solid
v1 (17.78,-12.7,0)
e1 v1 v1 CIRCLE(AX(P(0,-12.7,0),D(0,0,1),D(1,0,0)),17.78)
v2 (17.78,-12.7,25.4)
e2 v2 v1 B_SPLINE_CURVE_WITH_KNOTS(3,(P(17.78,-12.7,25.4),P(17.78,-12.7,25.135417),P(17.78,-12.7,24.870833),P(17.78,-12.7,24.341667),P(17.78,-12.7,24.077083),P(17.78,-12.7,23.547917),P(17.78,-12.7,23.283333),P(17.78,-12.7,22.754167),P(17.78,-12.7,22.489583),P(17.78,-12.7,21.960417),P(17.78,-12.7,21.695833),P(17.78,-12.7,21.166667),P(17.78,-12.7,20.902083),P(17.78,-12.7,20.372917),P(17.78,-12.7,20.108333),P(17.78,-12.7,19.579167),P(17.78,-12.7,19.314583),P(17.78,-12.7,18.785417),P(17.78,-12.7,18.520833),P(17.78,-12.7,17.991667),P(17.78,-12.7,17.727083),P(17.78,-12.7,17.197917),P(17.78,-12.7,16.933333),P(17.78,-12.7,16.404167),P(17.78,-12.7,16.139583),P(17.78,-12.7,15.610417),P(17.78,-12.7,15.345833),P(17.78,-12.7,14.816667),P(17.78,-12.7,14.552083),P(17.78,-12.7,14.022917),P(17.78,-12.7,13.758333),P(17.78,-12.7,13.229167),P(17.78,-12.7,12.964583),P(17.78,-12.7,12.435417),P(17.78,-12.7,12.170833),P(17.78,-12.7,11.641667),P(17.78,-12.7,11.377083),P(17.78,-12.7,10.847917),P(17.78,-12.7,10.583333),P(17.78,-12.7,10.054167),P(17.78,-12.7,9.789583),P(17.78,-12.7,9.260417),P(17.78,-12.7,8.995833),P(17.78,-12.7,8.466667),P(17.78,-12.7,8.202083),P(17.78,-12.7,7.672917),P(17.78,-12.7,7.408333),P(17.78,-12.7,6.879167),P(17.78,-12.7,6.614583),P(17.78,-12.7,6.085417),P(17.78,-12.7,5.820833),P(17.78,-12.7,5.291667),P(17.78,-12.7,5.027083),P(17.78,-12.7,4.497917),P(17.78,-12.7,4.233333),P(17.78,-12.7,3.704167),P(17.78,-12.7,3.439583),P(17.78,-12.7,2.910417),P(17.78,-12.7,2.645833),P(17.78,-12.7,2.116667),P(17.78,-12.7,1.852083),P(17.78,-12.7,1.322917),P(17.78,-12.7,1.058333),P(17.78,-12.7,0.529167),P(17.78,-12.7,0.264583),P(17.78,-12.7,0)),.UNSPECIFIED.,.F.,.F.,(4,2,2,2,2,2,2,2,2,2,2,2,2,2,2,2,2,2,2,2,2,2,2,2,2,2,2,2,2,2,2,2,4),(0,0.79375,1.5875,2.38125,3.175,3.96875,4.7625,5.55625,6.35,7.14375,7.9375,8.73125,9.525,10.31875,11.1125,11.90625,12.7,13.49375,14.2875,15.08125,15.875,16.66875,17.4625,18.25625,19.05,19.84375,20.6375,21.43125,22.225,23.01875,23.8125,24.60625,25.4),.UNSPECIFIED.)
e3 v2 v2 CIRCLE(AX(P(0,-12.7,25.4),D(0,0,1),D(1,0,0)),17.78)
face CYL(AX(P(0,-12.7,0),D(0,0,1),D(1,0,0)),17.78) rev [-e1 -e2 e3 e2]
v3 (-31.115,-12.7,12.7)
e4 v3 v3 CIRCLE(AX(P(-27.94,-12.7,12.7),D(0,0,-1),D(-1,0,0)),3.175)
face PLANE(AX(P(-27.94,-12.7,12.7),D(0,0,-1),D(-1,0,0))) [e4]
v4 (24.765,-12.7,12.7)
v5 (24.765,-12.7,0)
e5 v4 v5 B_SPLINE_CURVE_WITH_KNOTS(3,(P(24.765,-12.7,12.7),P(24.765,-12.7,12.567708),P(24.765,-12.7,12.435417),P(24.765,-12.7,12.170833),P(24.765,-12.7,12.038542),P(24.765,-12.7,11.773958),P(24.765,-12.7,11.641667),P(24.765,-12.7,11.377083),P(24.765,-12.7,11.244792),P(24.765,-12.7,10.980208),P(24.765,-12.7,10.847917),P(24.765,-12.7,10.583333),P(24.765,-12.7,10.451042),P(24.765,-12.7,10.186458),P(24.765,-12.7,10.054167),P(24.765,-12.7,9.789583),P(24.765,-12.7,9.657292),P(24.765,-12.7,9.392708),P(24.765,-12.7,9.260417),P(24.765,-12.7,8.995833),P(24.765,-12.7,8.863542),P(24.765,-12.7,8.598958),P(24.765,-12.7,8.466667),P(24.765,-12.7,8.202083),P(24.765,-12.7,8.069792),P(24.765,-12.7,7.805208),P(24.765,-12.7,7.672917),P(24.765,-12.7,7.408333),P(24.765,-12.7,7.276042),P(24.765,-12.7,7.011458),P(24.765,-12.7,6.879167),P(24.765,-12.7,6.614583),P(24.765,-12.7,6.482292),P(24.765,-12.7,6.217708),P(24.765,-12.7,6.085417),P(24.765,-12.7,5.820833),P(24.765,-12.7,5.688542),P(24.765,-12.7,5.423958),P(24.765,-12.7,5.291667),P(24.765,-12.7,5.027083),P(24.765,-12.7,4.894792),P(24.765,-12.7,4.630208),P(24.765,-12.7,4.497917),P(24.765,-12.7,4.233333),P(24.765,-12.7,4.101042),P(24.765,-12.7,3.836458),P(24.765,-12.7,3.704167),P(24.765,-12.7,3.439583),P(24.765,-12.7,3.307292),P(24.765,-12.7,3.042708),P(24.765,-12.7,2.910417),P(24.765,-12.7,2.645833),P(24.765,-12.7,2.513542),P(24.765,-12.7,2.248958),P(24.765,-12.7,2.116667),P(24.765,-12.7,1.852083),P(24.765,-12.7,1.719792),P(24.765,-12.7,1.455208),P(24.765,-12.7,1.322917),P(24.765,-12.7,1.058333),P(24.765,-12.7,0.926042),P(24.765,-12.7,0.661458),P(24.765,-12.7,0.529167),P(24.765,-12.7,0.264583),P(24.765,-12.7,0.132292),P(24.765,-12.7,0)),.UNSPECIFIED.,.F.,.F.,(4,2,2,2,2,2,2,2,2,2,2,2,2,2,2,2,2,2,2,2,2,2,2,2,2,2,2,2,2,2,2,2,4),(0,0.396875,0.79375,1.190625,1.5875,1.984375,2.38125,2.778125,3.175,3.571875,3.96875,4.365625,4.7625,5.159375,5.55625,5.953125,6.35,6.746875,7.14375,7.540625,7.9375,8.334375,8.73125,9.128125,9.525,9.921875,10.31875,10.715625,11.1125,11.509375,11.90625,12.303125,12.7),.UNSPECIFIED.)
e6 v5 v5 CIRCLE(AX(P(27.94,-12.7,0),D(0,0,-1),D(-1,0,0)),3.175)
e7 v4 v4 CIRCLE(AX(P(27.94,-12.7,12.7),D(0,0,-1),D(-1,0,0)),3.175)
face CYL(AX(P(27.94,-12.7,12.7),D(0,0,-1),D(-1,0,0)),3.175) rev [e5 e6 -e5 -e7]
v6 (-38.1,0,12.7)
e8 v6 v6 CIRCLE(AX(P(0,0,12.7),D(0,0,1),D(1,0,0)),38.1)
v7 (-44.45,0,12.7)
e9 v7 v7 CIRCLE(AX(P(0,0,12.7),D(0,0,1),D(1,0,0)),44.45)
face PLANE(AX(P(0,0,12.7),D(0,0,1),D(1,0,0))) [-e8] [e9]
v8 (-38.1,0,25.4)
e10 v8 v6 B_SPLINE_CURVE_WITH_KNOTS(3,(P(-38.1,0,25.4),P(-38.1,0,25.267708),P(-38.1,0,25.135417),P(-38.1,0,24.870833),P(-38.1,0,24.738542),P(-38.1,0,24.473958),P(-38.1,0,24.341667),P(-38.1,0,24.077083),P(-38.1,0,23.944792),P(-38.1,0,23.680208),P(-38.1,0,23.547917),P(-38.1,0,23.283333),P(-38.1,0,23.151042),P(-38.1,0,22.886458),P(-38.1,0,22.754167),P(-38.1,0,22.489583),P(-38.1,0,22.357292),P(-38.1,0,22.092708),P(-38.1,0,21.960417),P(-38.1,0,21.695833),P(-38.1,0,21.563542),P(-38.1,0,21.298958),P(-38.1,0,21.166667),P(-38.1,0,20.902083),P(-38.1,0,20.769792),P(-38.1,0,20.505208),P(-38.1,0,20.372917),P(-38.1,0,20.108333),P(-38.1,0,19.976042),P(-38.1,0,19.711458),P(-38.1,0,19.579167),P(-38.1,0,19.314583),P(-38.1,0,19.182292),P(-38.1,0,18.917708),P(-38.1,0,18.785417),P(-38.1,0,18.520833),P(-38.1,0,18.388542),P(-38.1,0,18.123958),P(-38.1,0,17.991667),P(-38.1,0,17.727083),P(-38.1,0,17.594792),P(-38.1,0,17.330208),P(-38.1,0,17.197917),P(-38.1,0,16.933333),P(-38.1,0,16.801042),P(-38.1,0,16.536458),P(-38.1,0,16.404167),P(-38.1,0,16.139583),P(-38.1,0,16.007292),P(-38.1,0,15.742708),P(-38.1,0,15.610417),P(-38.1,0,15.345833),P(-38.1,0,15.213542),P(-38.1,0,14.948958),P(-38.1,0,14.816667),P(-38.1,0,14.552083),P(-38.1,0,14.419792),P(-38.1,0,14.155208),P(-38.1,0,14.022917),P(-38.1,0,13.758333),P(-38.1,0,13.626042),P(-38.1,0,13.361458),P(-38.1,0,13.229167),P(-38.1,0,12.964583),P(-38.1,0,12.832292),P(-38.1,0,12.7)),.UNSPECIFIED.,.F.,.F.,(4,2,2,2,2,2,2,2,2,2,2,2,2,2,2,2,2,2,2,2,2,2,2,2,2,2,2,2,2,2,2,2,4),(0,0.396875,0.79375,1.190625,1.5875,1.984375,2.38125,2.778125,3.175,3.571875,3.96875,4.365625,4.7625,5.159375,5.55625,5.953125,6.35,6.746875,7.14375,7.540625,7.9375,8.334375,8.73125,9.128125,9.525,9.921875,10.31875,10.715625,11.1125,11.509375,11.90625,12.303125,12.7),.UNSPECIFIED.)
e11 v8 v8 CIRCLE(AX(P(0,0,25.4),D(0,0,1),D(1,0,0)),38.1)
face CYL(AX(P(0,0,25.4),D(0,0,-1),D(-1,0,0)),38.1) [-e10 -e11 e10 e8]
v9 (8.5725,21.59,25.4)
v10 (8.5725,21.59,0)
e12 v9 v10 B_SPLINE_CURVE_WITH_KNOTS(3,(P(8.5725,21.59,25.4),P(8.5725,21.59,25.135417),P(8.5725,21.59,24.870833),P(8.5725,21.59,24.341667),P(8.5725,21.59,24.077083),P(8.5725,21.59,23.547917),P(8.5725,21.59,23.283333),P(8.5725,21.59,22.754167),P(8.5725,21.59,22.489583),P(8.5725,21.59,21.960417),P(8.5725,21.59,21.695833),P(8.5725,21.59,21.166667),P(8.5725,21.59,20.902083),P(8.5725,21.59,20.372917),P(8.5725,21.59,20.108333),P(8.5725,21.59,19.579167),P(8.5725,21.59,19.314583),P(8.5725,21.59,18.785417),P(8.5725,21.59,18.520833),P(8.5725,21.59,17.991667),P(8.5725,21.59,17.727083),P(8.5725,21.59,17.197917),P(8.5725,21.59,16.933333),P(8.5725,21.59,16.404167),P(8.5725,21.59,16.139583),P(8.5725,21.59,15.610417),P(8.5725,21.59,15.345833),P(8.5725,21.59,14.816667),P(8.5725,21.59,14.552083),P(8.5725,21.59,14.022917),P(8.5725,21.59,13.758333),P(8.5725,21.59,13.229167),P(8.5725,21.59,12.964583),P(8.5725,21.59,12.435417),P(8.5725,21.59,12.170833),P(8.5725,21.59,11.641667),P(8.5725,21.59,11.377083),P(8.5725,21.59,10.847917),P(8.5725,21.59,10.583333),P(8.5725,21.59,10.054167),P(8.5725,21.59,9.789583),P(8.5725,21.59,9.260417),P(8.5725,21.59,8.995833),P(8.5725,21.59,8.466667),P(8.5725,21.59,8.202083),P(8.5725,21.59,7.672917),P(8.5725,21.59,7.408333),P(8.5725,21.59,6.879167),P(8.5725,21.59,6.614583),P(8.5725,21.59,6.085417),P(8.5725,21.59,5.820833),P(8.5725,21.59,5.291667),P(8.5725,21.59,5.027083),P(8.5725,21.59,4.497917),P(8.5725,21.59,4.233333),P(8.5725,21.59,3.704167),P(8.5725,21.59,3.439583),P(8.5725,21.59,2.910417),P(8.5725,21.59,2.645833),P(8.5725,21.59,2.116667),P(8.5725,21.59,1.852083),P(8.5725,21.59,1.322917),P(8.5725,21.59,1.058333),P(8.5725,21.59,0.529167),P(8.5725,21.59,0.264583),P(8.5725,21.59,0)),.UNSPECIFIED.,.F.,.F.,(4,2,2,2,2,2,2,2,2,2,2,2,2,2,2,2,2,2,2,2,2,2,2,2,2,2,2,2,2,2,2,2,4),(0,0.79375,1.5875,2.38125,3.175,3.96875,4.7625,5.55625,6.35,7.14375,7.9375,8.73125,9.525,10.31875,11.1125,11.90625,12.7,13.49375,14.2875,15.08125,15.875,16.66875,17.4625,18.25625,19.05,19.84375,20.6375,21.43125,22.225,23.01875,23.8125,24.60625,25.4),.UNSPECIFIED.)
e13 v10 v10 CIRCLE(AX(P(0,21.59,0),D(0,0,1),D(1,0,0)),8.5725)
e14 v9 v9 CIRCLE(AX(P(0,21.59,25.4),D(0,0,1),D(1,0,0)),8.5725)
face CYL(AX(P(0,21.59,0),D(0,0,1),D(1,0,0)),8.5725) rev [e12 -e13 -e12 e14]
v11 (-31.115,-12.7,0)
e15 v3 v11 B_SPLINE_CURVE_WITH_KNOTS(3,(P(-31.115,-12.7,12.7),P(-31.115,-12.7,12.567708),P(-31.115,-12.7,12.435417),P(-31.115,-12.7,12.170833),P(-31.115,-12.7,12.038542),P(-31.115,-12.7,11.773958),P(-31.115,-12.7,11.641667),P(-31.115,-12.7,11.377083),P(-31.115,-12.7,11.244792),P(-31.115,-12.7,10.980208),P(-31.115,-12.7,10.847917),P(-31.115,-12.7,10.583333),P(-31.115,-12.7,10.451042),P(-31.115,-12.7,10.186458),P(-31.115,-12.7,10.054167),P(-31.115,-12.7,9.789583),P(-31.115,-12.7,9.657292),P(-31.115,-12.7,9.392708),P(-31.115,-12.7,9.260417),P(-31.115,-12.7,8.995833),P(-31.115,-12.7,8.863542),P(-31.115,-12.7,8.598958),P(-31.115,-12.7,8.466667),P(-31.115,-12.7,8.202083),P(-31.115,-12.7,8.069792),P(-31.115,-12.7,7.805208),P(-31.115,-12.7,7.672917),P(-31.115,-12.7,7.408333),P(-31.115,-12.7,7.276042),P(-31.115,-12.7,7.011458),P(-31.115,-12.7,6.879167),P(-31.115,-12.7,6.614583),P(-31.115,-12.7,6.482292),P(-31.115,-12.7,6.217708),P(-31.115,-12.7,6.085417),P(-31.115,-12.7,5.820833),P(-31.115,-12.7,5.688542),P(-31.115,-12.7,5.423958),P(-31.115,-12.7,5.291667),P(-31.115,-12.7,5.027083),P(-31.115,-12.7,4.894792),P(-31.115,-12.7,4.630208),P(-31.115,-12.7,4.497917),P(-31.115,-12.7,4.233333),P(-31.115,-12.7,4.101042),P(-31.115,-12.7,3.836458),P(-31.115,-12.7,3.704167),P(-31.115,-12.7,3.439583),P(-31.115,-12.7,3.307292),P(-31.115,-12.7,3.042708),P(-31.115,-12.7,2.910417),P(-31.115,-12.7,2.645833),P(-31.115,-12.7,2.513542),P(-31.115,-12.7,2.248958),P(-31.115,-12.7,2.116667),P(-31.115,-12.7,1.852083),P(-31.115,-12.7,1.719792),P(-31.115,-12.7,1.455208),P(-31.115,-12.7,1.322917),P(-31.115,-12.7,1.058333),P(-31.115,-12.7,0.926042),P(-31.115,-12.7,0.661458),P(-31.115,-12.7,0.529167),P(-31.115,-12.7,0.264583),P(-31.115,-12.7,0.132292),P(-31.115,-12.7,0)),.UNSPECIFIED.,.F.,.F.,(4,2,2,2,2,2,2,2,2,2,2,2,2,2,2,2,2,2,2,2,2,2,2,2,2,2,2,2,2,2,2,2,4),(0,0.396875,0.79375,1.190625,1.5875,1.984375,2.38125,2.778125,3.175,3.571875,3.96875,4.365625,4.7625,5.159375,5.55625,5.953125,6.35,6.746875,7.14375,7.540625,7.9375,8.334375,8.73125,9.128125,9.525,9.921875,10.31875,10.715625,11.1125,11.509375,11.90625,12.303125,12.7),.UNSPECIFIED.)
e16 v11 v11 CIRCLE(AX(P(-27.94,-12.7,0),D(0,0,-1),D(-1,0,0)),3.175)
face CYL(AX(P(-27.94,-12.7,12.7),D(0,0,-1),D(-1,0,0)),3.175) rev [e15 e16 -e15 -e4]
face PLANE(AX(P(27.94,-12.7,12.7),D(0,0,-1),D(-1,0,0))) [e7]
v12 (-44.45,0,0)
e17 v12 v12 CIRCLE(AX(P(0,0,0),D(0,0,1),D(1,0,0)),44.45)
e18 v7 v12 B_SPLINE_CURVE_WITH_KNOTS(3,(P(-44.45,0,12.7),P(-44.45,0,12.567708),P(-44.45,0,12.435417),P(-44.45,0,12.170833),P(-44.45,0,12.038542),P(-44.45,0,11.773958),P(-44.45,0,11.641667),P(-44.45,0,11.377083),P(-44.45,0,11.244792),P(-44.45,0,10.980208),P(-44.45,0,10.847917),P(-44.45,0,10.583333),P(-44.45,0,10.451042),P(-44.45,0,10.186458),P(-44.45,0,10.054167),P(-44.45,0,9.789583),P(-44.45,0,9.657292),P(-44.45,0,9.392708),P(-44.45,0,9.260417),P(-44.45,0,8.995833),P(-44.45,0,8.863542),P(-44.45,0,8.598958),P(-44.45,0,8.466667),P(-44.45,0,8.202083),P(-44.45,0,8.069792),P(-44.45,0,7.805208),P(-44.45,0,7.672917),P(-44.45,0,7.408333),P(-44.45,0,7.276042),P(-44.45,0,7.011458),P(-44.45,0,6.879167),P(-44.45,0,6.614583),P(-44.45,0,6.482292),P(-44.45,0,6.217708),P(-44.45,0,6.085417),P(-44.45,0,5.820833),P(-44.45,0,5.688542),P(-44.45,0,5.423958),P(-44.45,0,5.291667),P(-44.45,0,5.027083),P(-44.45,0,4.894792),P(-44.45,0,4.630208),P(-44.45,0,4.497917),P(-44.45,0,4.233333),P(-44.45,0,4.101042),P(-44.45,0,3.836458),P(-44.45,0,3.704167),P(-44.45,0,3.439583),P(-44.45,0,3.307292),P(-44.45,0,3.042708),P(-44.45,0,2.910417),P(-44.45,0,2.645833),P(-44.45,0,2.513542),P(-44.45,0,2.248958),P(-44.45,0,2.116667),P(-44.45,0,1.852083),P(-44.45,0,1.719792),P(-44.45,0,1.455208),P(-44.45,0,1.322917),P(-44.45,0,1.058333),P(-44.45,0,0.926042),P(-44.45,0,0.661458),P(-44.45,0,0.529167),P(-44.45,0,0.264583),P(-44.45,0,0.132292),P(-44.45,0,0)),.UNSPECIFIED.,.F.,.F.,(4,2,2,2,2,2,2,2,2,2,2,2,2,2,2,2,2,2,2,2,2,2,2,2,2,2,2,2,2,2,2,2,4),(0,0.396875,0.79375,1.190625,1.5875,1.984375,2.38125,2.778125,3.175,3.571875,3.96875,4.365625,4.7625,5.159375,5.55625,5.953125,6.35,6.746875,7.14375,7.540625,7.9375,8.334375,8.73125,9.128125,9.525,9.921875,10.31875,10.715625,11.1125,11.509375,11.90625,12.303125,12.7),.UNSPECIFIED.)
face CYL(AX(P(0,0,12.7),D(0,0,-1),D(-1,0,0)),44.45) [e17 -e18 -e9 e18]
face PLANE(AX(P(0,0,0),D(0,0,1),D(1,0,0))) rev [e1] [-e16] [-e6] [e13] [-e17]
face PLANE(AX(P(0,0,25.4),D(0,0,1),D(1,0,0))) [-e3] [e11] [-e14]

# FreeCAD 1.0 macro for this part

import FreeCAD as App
import Part
import Sketcher
from FreeCAD import Vector
Q = App.Units.Quantity

doc = App.newDocument("Part")
body = doc.addObject("PartDesign::Body", "Body")

# Sketch on XY plane
sketch1 = body.newObject("Sketcher::SketchObject", "Sketch")
sketch1.AttachmentSupport = (doc.getObject("XY_Plane"), [""])
sketch1.MapMode = "FlatFace"
sketch1.addGeometry(Part.Circle(Vector(0, 0, 0), Vector(0, 0, 1), 44), False)
sketch1.addConstraint([
    Sketcher.Constraint("Coincident", 0, 3, -1, 1),
    Sketcher.Constraint("Diameter", 0, Q("3.5 in")),
])
pad1 = body.newObject("PartDesign::Pad", "Pad")
pad1.Profile = sketch1
pad1.Length = Q("0.5 in")

# Sketch on XY plane
sketch2 = body.newObject("Sketcher::SketchObject", "Sketch001")
sketch2.AttachmentSupport = (doc.getObject("XY_Plane"), [""])
sketch2.MapMode = "FlatFace"
sketch2.AttachmentOffset = App.Placement(Vector(0, 0, 0.5 * 25.4), App.Rotation())
sketch2.addGeometry(Part.Circle(Vector(0, 0, 0), Vector(0, 0, 1), 38), False)
sketch2.addConstraint([
    Sketcher.Constraint("Coincident", 0, 3, -1, 1),
    Sketcher.Constraint("Diameter", 0, Q("3 in")),
])
pad2 = body.newObject("PartDesign::Pad", "Pad001")
pad2.Profile = sketch2
pad2.Length = Q("0.5 in")

# Sketch on XY plane
sketch3 = body.newObject("Sketcher::SketchObject", "Sketch002")
sketch3.AttachmentSupport = (doc.getObject("XY_Plane"), [""])
sketch3.MapMode = "FlatFace"
sketch3.AttachmentOffset = App.Placement(Vector(0, 0, 1 * 25.4), App.Rotation())
sketch3.addGeometry(Part.Circle(Vector(0, 22, 0), Vector(0, 0, 1), 9), False)
sketch3.addConstraint([
    Sketcher.Constraint("PointOnObject", 0, 3, -2),
    Sketcher.Constraint("Diameter", 0, Q("0.675 in")),
    Sketcher.Constraint("DistanceY", -1, 1, 0, 3, Q("0.85 in")),
])
pocket1 = body.newObject("PartDesign::Pocket", "Pocket")
pocket1.Profile = sketch3
pocket1.Type = "ThroughAll"
pocket1.Midplane = True

# Sketch on XY plane
sketch4 = body.newObject("Sketcher::SketchObject", "Sketch003")
sketch4.AttachmentSupport = (doc.getObject("XY_Plane"), [""])
sketch4.MapMode = "FlatFace"
sketch4.AttachmentOffset = App.Placement(Vector(0, 0, 1 * 25.4), App.Rotation())
sketch4.addGeometry(Part.Circle(Vector(0, -13, 0), Vector(0, 0, 1), 18), False)
sketch4.addConstraint([
    Sketcher.Constraint("PointOnObject", 0, 3, -2),
    Sketcher.Constraint("Diameter", 0, Q("1.4 in")),
    Sketcher.Constraint("DistanceY", 0, 3, -1, 1, Q("0.5 in")),
])
pocket2 = body.newObject("PartDesign::Pocket", "Pocket001")
pocket2.Profile = sketch4
pocket2.Type = "ThroughAll"
pocket2.Midplane = True

# Sketch on XY plane
sketch5 = body.newObject("Sketcher::SketchObject", "Sketch004")
sketch5.AttachmentSupport = (doc.getObject("XY_Plane"), [""])
sketch5.MapMode = "FlatFace"
sketch5.addGeometry([
    Part.Circle(Vector(-27.9, -12.7, 0), Vector(0, 0, 1), 3.2),
    Part.Circle(Vector(27.9, -12.7, 0), Vector(0, 0, 1), 3.2),
], False)
sketch5.addConstraint([
    Sketcher.Constraint("Equal", 0, 1),
    Sketcher.Constraint("Symmetric", 0, 3, 1, 3, -2),
    Sketcher.Constraint("Diameter", 0, Q("0.25 in")),
    Sketcher.Constraint("DistanceX", 0, 3, -1, 1, Q("1.1 in")),
    Sketcher.Constraint("DistanceY", 0, 3, -1, 1, Q("0.5 in")),
])
pocket3 = body.newObject("PartDesign::Pocket", "Pocket002")
pocket3.Profile = sketch5
pocket3.Length = Q("0.5 in")
pocket3.Reversed = True

doc.recompute()
